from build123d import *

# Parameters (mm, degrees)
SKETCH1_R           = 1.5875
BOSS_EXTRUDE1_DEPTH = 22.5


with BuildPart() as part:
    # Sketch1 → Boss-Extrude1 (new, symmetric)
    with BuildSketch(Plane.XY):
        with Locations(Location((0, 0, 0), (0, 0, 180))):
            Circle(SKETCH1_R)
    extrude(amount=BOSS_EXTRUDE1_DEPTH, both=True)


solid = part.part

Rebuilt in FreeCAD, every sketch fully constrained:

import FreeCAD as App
import Part
import Sketcher
Q = App.Units.Quantity

doc = App.newDocument("Part")
params = doc.addObject("Spreadsheet::Sheet", "Params")
for row, (alias, value) in enumerate([
    ("pad1_length", "45 mm"),
], start=1):
    params.set(f"A{row}", alias)
    params.set(f"B{row}", "=" + value)
    params.setAlias(f"B{row}", alias)

body = doc.addObject("PartDesign::Body", "Body")

# Sketch on XY plane
sketch1 = body.newObject("Sketcher::SketchObject", "Sketch")
sketch1.AttachmentSupport = (doc.getObject("XY_Plane"), [""])
sketch1.MapMode = "FlatFace"
sketch1.addGeometry(Part.Circle(App.Vector(0, 0, 0), App.Vector(0, 0, 1), 1.5875), False)
sketch1.addConstraint([
    Sketcher.Constraint("Coincident", 0, 3, -1, 1),
    Sketcher.Constraint("Diameter", 0, Q("3.175 mm")),
])
pad1 = body.newObject("PartDesign::Pad", "Pad")
pad1.Profile = sketch1
pad1.setExpression("Length", "Params.pad1_length")
pad1.Midplane = True

doc.recompute()
